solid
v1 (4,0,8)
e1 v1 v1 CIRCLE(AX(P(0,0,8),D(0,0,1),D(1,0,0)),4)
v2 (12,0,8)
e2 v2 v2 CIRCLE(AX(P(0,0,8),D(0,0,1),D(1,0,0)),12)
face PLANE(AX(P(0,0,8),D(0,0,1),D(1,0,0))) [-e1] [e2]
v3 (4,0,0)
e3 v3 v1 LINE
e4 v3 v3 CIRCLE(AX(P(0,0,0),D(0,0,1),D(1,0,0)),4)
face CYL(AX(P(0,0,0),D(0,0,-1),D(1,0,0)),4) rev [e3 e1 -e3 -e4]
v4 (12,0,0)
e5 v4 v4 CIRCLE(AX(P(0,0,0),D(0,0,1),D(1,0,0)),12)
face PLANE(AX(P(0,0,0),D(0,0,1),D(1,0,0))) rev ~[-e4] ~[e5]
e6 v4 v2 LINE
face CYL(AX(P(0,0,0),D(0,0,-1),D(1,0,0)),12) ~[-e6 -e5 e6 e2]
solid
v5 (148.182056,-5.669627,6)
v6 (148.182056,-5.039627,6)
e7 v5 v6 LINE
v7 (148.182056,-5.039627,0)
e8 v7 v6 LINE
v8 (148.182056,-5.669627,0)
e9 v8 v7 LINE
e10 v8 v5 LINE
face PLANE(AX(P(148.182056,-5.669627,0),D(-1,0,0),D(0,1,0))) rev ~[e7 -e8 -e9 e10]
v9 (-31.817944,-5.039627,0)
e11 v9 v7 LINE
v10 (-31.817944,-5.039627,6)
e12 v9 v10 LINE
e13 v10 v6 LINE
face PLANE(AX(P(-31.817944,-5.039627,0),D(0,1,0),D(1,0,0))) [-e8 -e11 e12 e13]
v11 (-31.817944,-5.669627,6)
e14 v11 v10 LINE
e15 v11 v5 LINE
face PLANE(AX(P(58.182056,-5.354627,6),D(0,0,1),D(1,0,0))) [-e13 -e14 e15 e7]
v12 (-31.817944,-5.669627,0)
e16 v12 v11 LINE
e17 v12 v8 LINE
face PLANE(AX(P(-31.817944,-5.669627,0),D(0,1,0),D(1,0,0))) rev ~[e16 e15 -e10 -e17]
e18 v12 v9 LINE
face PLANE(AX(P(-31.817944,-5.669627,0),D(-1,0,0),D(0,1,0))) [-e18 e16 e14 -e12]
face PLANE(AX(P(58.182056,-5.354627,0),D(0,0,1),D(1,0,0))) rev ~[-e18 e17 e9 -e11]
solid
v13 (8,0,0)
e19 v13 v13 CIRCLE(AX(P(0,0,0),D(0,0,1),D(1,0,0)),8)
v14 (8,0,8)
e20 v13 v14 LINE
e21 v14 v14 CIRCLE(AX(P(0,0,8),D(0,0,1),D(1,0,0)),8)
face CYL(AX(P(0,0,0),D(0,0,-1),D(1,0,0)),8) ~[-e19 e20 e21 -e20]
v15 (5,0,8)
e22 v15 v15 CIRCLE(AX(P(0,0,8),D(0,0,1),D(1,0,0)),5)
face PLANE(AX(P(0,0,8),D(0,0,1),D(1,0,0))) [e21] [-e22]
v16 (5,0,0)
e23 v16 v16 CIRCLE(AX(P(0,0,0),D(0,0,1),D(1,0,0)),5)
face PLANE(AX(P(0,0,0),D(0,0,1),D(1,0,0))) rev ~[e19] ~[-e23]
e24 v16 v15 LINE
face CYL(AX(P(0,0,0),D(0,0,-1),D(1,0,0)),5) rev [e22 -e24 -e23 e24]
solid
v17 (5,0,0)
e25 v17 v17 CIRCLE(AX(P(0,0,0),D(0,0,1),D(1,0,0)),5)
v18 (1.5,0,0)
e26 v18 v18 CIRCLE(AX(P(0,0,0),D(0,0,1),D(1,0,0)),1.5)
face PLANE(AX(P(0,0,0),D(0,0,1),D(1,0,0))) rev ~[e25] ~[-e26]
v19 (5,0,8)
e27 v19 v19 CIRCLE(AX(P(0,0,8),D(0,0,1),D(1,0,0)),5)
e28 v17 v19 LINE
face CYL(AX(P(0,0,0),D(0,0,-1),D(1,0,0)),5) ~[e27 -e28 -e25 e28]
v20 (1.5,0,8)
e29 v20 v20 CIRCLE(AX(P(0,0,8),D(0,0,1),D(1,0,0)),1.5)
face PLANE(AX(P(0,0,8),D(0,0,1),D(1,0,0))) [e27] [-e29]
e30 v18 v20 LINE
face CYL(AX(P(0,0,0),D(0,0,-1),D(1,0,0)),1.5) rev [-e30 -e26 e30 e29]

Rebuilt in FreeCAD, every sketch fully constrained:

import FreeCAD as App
import Part
import Sketcher


def add_polygon(sketch, points):
    """Adds a closed chain of lines whose ends are joined by coincident constraints."""
    first, n = sketch.GeometryCount, len(points)
    for a, b in zip(points, points[1:] + points[:1]):
        sketch.addGeometry(Part.LineSegment(App.Vector(*a, 0), App.Vector(*b, 0)), False)
    for i in range(n):
        sketch.addConstraint(Sketcher.Constraint("Coincident", first + i, 2, first + (i + 1) % n, 1))

doc = App.newDocument("Part")
body = doc.addObject("PartDesign::Body", "Body")

# Sketch on XY plane
sketch1 = body.newObject("Sketcher::SketchObject", "Sketch")
sketch1.AttachmentSupport = (doc.getObject("XY_Plane"), [""])
sketch1.MapMode = "FlatFace"
sketch1.addGeometry([
    Part.Circle(App.Vector(0, 0, 0), App.Vector(0, 0, 1), 5),
    Part.Circle(App.Vector(0, 0, 0), App.Vector(0, 0, 1), 1.5),
], False)
sketch1.addConstraint([
    Sketcher.Constraint("Coincident", 0, 3, -1, 1),
    Sketcher.Constraint("Coincident", 1, 3, -1, 1),
    Sketcher.Constraint("Diameter", 0, 10.0),
    Sketcher.Constraint("Diameter", 1, 3.0),
])
pad1 = body.newObject("PartDesign::Pad", "Pad")
pad1.Profile = sketch1
pad1.Length = 8
body2 = doc.addObject("PartDesign::Body", "Body001")

# Sketch on XY plane
sketch2 = body2.newObject("Sketcher::SketchObject", "Sketch001")
sketch2.AttachmentSupport = (doc.getObject("XY_Plane001"), [""])
sketch2.MapMode = "FlatFace"
sketch2.addGeometry([
    Part.Circle(App.Vector(0, 0, 0), App.Vector(0, 0, 1), 8),
    Part.Circle(App.Vector(0, 0, 0), App.Vector(0, 0, 1), 5),
], False)
sketch2.addConstraint([
    Sketcher.Constraint("Coincident", 0, 3, -1, 1),
    Sketcher.Constraint("Coincident", 1, 3, -1, 1),
    Sketcher.Constraint("Diameter", 0, 16.0),
    Sketcher.Constraint("Diameter", 1, 10.0),
])
pad2 = body2.newObject("PartDesign::Pad", "Pad001")
pad2.Profile = sketch2
pad2.Length = 8
body3 = doc.addObject("PartDesign::Body", "Body002")

# Sketch on XY plane
sketch3 = body3.newObject("Sketcher::SketchObject", "Sketch002")
sketch3.AttachmentSupport = (doc.getObject("XY_Plane002"), [""])
sketch3.MapMode = "FlatFace"
sketch3.addGeometry([
    Part.Circle(App.Vector(0, 0, 0), App.Vector(0, 0, 1), 12),
    Part.Circle(App.Vector(0, 0, 0), App.Vector(0, 0, 1), 4),
], False)
sketch3.addConstraint([
    Sketcher.Constraint("Coincident", 0, 3, -1, 1),
    Sketcher.Constraint("Coincident", 1, 3, -1, 1),
    Sketcher.Constraint("Diameter", 0, 24.0),
    Sketcher.Constraint("Diameter", 1, 8.0),
])
pad3 = body3.newObject("PartDesign::Pad", "Pad002")
pad3.Profile = sketch3
pad3.Length = 8
body4 = doc.addObject("PartDesign::Body", "Body003")

# Sketch on XY plane
sketch4 = body4.newObject("Sketcher::SketchObject", "Sketch003")
sketch4.AttachmentSupport = (doc.getObject("XY_Plane003"), [""])
sketch4.MapMode = "FlatFace"
add_polygon(sketch4, [(-31.8, -5), (-31.8, -5.7), (148.2, -5.7), (148.2, -5)])  # lines 0-3
sketch4.addConstraint([
    Sketcher.Constraint("Vertical", 0),
    Sketcher.Constraint("Horizontal", 1),
    Sketcher.Constraint("Vertical", 2),
    Sketcher.Constraint("Horizontal", 3),
    Sketcher.Constraint("DistanceX", 1, 1, 1, 2, 180.0),
    Sketcher.Constraint("DistanceY", 0, 2, 0, 1, 0.63),
    Sketcher.Constraint("DistanceX", 0, 2, -1, 1, 31.817944),
    Sketcher.Constraint("DistanceY", 0, 2, -1, 1, 5.669627),
])
pad4 = body4.newObject("PartDesign::Pad", "Pad003")
pad4.Profile = sketch4
pad4.Length = 6

doc.recompute()
